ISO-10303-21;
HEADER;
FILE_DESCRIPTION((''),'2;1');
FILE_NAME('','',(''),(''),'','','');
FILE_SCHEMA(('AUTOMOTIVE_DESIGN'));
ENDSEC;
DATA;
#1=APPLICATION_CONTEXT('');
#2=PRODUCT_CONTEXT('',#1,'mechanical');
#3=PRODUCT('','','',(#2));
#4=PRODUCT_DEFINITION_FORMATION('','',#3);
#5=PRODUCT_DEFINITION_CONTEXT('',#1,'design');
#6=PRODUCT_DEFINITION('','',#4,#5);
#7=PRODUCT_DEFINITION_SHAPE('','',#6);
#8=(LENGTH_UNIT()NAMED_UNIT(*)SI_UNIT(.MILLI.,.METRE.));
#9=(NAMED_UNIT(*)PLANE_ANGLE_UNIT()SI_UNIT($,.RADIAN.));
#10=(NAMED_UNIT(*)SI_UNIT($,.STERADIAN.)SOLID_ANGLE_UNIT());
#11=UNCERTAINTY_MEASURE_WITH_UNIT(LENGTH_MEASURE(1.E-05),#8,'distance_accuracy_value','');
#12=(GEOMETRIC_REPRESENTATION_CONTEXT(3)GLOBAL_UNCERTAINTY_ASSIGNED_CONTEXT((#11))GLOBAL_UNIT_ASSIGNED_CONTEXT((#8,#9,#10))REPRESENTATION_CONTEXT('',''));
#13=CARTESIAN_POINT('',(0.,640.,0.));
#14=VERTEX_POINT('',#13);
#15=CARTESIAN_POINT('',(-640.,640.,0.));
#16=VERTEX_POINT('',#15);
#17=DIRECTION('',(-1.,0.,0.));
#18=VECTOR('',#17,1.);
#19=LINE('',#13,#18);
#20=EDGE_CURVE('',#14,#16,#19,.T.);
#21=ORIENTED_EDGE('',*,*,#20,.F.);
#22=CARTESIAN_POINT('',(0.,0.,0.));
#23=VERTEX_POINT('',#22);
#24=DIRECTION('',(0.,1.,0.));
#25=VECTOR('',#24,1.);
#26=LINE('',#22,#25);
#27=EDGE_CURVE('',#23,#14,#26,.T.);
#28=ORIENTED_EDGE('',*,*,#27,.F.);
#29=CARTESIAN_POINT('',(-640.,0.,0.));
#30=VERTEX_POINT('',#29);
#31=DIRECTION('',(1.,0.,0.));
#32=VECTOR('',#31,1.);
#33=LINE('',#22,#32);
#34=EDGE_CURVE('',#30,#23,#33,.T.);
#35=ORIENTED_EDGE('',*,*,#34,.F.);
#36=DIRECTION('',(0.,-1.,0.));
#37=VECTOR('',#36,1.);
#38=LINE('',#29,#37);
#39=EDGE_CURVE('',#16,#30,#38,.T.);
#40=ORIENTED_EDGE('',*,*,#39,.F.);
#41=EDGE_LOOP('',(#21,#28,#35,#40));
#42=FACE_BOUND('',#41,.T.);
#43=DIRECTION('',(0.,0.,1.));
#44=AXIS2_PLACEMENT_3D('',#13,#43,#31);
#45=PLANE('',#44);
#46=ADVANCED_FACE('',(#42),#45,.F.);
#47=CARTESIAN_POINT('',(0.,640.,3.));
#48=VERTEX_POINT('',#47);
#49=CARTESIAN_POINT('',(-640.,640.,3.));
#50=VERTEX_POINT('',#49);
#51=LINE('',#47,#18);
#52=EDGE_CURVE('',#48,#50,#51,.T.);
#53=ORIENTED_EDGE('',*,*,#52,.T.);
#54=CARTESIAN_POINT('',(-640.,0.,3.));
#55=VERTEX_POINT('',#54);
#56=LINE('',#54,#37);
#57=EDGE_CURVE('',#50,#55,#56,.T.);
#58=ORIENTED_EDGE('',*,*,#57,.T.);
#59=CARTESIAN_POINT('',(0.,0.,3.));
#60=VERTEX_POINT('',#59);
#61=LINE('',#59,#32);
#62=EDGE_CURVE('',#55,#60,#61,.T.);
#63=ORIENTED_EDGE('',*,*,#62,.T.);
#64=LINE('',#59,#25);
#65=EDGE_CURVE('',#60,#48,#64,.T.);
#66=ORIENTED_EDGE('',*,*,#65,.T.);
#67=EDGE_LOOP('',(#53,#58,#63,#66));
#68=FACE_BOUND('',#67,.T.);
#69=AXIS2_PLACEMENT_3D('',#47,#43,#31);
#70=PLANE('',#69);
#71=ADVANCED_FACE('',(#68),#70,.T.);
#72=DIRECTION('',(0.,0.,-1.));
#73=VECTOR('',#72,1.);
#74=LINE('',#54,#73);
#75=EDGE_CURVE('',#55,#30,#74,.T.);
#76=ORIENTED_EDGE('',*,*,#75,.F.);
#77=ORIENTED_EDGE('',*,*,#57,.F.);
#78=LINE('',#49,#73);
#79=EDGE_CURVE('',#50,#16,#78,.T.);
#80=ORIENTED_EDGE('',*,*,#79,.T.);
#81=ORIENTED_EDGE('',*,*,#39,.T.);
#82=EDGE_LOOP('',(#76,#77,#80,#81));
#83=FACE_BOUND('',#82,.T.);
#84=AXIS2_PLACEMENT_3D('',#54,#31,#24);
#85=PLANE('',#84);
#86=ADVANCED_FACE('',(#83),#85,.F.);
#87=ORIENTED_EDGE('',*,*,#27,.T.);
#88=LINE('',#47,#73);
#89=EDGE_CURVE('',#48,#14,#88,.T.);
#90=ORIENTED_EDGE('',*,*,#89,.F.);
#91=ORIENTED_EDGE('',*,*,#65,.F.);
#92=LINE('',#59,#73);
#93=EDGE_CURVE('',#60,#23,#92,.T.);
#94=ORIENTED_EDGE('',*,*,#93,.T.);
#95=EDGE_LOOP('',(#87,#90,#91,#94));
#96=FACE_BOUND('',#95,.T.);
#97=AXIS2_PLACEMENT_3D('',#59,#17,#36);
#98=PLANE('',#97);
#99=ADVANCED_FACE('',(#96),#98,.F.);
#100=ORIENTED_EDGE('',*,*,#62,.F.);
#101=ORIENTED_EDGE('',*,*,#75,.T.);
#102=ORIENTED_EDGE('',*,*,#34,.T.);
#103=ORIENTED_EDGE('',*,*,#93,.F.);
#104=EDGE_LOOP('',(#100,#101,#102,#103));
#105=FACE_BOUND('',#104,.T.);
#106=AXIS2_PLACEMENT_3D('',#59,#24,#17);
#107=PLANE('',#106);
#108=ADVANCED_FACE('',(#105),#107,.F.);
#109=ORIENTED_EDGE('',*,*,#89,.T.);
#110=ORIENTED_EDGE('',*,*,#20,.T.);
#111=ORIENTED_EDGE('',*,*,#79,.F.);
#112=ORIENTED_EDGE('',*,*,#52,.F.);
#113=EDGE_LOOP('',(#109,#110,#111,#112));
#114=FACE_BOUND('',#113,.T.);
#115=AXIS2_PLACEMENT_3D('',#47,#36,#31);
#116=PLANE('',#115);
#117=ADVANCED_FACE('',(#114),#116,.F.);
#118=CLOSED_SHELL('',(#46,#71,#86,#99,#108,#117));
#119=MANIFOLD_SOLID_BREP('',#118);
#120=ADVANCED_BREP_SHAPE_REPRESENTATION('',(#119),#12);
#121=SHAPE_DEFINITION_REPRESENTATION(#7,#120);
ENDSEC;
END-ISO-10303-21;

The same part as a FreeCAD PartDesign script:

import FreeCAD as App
import Part
import Sketcher

doc = App.newDocument("Part")
body = doc.addObject("PartDesign::Body", "Body")

# Sketch on XY plane
sketch1 = body.newObject("Sketcher::SketchObject", "Sketch")
sketch1.AttachmentSupport = (doc.getObject("XY_Plane"), [""])
sketch1.MapMode = "FlatFace"
sketch1.addGeometry([
    Part.LineSegment(App.Vector(-640, 640, 0), App.Vector(-640, 0, 0)),
    Part.LineSegment(App.Vector(-640, 0, 0), App.Vector(0, 0, 0)),
    Part.LineSegment(App.Vector(0, 0, 0), App.Vector(0, 640, 0)),
    Part.LineSegment(App.Vector(0, 640, 0), App.Vector(-640, 640, 0)),
], False)
sketch1.addConstraint([
    Sketcher.Constraint("Coincident", 0, 2, 1, 1),
    Sketcher.Constraint("Coincident", 1, 2, 2, 1),
    Sketcher.Constraint("Coincident", 2, 2, 3, 1),
    Sketcher.Constraint("Coincident", 3, 2, 0, 1),
    Sketcher.Constraint("Vertical", 0),
    Sketcher.Constraint("Horizontal", 1),
    Sketcher.Constraint("Vertical", 2),
    Sketcher.Constraint("Horizontal", 3),
    Sketcher.Constraint("Coincident", 1, 2, -1, 1),
    Sketcher.Constraint("Equal", 3, 0),
    Sketcher.Constraint("DistanceX", 1, 1, 1, 2, 640.0),
])
pad1 = body.newObject("PartDesign::Pad", "Pad")
pad1.Profile = sketch1
pad1.Length = 3

doc.recompute()
